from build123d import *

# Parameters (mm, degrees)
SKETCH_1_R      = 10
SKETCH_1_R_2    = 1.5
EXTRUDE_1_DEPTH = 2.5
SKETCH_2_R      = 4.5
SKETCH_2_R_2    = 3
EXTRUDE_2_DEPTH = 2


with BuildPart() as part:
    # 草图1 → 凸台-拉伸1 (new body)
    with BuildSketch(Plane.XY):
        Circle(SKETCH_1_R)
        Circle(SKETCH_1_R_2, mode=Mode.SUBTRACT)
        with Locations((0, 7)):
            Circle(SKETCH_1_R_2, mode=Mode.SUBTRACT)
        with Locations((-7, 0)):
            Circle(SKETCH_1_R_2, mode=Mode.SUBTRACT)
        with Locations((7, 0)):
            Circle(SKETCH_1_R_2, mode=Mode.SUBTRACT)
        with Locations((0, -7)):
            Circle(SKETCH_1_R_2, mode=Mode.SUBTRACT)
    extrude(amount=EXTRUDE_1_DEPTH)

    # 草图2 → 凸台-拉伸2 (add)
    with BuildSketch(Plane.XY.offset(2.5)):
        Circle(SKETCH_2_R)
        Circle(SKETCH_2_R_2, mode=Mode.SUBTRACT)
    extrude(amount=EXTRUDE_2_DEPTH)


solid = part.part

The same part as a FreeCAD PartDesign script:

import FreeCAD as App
import Part
import Sketcher

doc = App.newDocument("Part")
body = doc.addObject("PartDesign::Body", "Body")

sketch1 = body.newObject("Sketcher::SketchObject", "Sketch")
sketch1.AttachmentSupport = (doc.getObject("XY_Plane"), [""])
sketch1.MapMode = "FlatFace"
sketch1.addGeometry(Part.Circle(App.Vector(0, 0, 0), App.Vector(0, 0, 1), 10), False)
sketch1.addGeometry(Part.Circle(App.Vector(0, -7, 0), App.Vector(0, 0, 1), 1.5), False)
sketch1.addGeometry(Part.Circle(App.Vector(-7, 0, 0), App.Vector(0, 0, 1), 1.5), False)
sketch1.addGeometry(Part.Circle(App.Vector(0, 0, 0), App.Vector(0, 0, 1), 1.5), False)
sketch1.addGeometry(Part.Circle(App.Vector(7, 0, 0), App.Vector(0, 0, 1), 1.5), False)
sketch1.addGeometry(Part.Circle(App.Vector(0, 7, 0), App.Vector(0, 0, 1), 1.5), False)
sketch1.addConstraint(Sketcher.Constraint("Coincident", 0, 3, -1, 1))
sketch1.addConstraint(Sketcher.Constraint("Coincident", 3, 3, -1, 1))
sketch1.addConstraint(Sketcher.Constraint("Equal", 1, 2))
sketch1.addConstraint(Sketcher.Constraint("Equal", 2, 3))
sketch1.addConstraint(Sketcher.Constraint("Equal", 3, 4))
sketch1.addConstraint(Sketcher.Constraint("Equal", 4, 5))
sketch1.addConstraint(Sketcher.Constraint("Symmetric", 2, 3, 4, 3, -1, 1))
sketch1.addConstraint(Sketcher.Constraint("Symmetric", 1, 3, 5, 3, -1, 1))
sketch1.addConstraint(Sketcher.Constraint("PointOnObject", 1, 3, -2))
sketch1.addConstraint(Sketcher.Constraint("PointOnObject", 2, 3, -1))
sketch1.addConstraint(Sketcher.Constraint("Diameter", 0, 20.0))
sketch1.addConstraint(Sketcher.Constraint("Diameter", 1, 3.0))
sketch1.addConstraint(Sketcher.Constraint("DistanceY", 1, 3, -1, 1, 7.0))
sketch1.addConstraint(Sketcher.Constraint("DistanceX", 2, 3, -1, 1, 7.0))
pad1 = body.newObject("PartDesign::Pad", "Pad")
pad1.Profile = sketch1
pad1.Length = 2.5

sketch2 = body.newObject("Sketcher::SketchObject", "Sketch001")
sketch2.AttachmentSupport = (doc.getObject("XY_Plane"), [""])
sketch2.MapMode = "FlatFace"
sketch2.AttachmentOffset = App.Placement(App.Vector(0, 0, 2.5), App.Rotation())
sketch2.addGeometry(Part.Circle(App.Vector(0, 0, 0), App.Vector(0, 0, 1), 4.5), False)
sketch2.addGeometry(Part.Circle(App.Vector(0, 0, 0), App.Vector(0, 0, 1), 3), False)
sketch2.addConstraint(Sketcher.Constraint("Coincident", 0, 3, -1, 1))
sketch2.addConstraint(Sketcher.Constraint("Coincident", 1, 3, -1, 1))
sketch2.addConstraint(Sketcher.Constraint("Diameter", 0, 9.0))
sketch2.addConstraint(Sketcher.Constraint("Diameter", 1, 6.0))
pad2 = body.newObject("PartDesign::Pad", "Pad001")
pad2.Profile = sketch2
pad2.Length = 2

doc.recompute()
